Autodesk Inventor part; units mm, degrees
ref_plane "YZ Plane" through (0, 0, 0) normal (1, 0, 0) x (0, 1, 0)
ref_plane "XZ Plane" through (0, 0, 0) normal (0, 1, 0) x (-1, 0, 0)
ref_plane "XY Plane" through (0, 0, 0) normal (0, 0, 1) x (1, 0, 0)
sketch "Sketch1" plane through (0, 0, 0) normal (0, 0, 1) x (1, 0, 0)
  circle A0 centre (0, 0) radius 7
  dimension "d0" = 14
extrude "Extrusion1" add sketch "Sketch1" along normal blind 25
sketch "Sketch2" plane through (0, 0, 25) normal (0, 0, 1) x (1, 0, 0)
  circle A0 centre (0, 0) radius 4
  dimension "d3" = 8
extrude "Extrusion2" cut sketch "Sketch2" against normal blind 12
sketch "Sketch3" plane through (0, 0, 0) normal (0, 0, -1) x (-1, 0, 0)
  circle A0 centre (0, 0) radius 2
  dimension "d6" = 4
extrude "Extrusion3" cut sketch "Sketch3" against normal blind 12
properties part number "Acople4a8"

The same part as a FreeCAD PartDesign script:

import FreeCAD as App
import Part
import Sketcher

V = App.Vector

doc = App.newDocument("Part")
body = doc.addObject("PartDesign::Body", "Body")

sketch1 = body.newObject("Sketcher::SketchObject", "Sketch")
sketch1.AttachmentSupport = (doc.getObject("XY_Plane"), [""])
sketch1.MapMode = "FlatFace"
sketch1.addGeometry(Part.Circle(V(0, 0, 0), V(0, 0, 1), 7), False)
sketch1.addConstraint([
    Sketcher.Constraint("Coincident", 0, 3, -1, 1),
    Sketcher.Constraint("Diameter", 0, 14.0),
])
pad1 = body.newObject("PartDesign::Pad", "Pad")
pad1.Profile = sketch1
pad1.Length = 25

sketch2 = body.newObject("Sketcher::SketchObject", "Sketch001")
sketch2.AttachmentSupport = (doc.getObject("XY_Plane"), [""])
sketch2.MapMode = "FlatFace"
sketch2.AttachmentOffset = App.Placement(V(0, 0, 25), App.Rotation())
sketch2.addGeometry(Part.Circle(V(0, 0, 0), V(0, 0, 1), 4), False)
sketch2.addConstraint([
    Sketcher.Constraint("Coincident", 0, 3, -1, 1),
    Sketcher.Constraint("Diameter", 0, 8.0),
])
pocket1 = body.newObject("PartDesign::Pocket", "Pocket")
pocket1.Profile = sketch2
pocket1.Length = 12

sketch3 = body.newObject("Sketcher::SketchObject", "Sketch002")
sketch3.AttachmentSupport = (doc.getObject("XY_Plane"), [""])
sketch3.MapMode = "FlatFace"
sketch3.addGeometry(Part.Circle(V(0, 0, 0), V(0, 0, 1), 2), False)
sketch3.addConstraint([
    Sketcher.Constraint("Coincident", 0, 3, -1, 1),
    Sketcher.Constraint("Diameter", 0, 4.0),
])
pocket2 = body.newObject("PartDesign::Pocket", "Pocket001")
pocket2.Profile = sketch3
pocket2.Length = 12
pocket2.Reversed = True

doc.recompute()
